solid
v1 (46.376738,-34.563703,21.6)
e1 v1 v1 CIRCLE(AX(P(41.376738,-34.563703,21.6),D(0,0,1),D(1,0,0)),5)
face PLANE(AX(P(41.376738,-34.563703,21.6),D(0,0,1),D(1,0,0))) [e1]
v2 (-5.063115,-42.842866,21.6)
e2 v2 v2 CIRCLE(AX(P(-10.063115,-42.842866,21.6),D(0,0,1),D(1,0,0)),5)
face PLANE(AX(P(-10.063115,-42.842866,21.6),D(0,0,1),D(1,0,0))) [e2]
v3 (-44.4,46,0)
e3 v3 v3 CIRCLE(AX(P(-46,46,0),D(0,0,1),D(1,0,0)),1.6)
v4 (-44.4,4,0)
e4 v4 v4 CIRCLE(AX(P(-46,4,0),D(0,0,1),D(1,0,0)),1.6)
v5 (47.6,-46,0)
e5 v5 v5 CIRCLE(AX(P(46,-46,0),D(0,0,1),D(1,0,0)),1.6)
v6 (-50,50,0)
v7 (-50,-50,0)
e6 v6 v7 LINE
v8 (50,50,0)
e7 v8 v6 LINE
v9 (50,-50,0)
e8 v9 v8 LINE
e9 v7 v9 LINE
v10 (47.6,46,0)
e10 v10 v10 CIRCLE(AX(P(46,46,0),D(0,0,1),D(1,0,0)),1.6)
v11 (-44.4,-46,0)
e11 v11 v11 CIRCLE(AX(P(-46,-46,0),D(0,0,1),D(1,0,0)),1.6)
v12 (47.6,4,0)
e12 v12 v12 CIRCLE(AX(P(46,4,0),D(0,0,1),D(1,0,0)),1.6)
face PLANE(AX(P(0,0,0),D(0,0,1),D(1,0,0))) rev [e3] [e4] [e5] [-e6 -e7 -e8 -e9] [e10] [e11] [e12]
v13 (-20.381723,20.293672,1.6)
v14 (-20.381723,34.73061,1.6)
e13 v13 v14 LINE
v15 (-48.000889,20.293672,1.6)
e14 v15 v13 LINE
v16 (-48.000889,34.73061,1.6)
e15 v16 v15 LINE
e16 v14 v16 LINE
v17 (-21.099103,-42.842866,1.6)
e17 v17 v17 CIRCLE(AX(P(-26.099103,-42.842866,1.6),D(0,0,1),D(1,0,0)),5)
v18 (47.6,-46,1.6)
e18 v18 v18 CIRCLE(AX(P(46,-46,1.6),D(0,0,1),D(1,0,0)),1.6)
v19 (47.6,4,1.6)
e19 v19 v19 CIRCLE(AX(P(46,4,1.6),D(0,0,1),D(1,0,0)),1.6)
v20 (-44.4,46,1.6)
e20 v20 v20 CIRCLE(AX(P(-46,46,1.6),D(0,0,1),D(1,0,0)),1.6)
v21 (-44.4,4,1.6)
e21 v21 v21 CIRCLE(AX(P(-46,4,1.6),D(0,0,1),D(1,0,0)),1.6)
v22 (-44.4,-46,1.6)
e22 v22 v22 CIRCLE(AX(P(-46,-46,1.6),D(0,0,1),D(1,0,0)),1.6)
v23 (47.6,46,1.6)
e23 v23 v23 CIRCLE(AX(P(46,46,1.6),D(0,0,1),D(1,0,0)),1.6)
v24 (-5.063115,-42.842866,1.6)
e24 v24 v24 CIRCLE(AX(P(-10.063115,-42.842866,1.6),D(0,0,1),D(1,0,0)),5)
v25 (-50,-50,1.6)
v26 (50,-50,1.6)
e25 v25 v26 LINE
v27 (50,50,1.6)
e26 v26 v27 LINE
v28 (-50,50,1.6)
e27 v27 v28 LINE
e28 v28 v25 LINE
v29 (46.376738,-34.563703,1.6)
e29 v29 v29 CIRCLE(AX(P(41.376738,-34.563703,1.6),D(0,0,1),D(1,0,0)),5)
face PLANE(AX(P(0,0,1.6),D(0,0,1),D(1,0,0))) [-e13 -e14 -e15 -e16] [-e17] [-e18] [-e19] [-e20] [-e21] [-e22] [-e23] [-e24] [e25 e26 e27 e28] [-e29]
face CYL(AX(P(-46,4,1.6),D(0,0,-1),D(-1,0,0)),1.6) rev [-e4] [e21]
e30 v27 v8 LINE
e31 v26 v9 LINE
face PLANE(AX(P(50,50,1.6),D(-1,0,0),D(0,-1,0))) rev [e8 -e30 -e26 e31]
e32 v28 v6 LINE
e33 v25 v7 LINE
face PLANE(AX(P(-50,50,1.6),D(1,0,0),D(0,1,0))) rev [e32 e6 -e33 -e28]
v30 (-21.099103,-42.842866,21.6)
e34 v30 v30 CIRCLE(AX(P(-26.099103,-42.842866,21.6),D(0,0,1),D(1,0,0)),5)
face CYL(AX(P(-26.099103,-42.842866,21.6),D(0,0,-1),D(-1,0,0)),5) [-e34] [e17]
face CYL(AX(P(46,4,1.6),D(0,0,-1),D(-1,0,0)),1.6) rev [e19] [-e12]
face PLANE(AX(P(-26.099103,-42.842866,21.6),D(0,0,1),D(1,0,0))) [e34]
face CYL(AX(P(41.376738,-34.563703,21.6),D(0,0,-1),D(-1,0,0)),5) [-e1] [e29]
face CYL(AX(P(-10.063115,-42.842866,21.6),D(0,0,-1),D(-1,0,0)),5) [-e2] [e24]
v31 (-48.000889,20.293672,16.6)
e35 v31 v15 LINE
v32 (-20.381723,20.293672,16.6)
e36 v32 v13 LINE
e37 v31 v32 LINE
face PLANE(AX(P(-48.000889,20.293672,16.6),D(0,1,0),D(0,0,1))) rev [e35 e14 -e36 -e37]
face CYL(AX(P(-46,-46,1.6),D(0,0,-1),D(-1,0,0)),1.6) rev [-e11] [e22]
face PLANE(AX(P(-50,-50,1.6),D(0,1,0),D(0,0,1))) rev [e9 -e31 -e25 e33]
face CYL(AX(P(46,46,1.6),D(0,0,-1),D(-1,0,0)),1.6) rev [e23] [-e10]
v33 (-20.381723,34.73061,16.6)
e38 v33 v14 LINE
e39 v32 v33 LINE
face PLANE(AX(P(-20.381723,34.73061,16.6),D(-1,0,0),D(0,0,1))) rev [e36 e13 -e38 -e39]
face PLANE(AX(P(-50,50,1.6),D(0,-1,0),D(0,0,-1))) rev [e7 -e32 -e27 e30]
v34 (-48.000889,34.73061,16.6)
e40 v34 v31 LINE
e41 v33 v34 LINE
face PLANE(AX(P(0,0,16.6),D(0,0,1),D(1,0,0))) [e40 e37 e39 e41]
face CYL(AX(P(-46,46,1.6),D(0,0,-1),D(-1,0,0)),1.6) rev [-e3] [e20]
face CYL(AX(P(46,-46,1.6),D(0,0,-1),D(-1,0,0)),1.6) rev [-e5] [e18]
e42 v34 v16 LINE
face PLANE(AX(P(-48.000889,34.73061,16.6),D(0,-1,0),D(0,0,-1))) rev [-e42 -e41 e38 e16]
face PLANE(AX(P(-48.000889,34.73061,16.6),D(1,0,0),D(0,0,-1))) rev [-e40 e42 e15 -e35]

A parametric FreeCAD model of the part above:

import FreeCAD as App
import Part
import Sketcher
Q = App.Units.Quantity

doc = App.newDocument("Part")
params = doc.addObject("Spreadsheet::Sheet", "Params")
for row, (alias, value) in enumerate([
    ("sketch1_diameter", "3.2 mm"),
    ("sketch1_width", "100 mm"),
    ("pad1_length", "1.6 mm"),
    ("sketch2_diameter", "10 mm"),
    ("pad2_length", "20 mm"),
    ("pad3_length", "15 mm"),
], start=1):
    params.set(f"A{row}", alias)
    params.set(f"B{row}", "=" + value)
    params.setAlias(f"B{row}", alias)

body = doc.addObject("PartDesign::Body", "Body")

# Sketch on XY plane
sketch1 = doc.addObject("Sketcher::SketchObject", "Sketch")
body.addObject(sketch1)
sketch1.AttachmentSupport = (doc.XY_Plane, [""])
sketch1.MapMode = "FlatFace"
sketch1.addGeometry([
    Part.LineSegment(App.Vector(-50, 50, 0), App.Vector(-50, -50, 0)),  # 0
    Part.LineSegment(App.Vector(-50, -50, 0), App.Vector(50, -50, 0)),  # 1
    Part.LineSegment(App.Vector(50, -50, 0), App.Vector(50, 50, 0)),  # 2
    Part.LineSegment(App.Vector(50, 50, 0), App.Vector(-50, 50, 0)),  # 3
    Part.Circle(App.Vector(-46, -46, 0), App.Vector(0, 0, 1), 1.6),  # 4
    Part.Circle(App.Vector(46, -46, 0), App.Vector(0, 0, 1), 1.6),  # 5
    Part.Circle(App.Vector(-46, 4, 0), App.Vector(0, 0, 1), 1.6),  # 6
    Part.Circle(App.Vector(-46, 46, 0), App.Vector(0, 0, 1), 1.6),  # 7
    Part.Circle(App.Vector(46, 4, 0), App.Vector(0, 0, 1), 1.6),  # 8
    Part.Circle(App.Vector(46, 46, 0), App.Vector(0, 0, 1), 1.6),  # 9
], False)
sketch1.addConstraint([
    Sketcher.Constraint("Coincident", 0, 2, 1, 1),
    Sketcher.Constraint("Coincident", 1, 2, 2, 1),
    Sketcher.Constraint("Coincident", 2, 2, 3, 1),
    Sketcher.Constraint("Coincident", 3, 2, 0, 1),
    Sketcher.Constraint("Vertical", 0),
    Sketcher.Constraint("Horizontal", 1),
    Sketcher.Constraint("Vertical", 2),
    Sketcher.Constraint("Horizontal", 3),
    Sketcher.Constraint("Equal", 4, 5),
    Sketcher.Constraint("Equal", 5, 6),
    Sketcher.Constraint("Equal", 6, 7),
    Sketcher.Constraint("Equal", 7, 8),
    Sketcher.Constraint("Equal", 8, 9),
    Sketcher.Constraint("Symmetric", 5, 3, 7, 3, -1, 1),
    Sketcher.Constraint("Symmetric", 4, 3, 9, 3, -1, 1),
    Sketcher.Constraint("Symmetric", 0, 2, 2, 2, -1, 1),
    Sketcher.Constraint("Symmetric", 4, 3, 5, 3, -2),
    Sketcher.Constraint("Symmetric", 6, 3, 8, 3, -2),
    Sketcher.Constraint("Vertical", 4, 3, 6, 3),
    Sketcher.Constraint("Equal", 3, 0),
    Sketcher.Constraint("Diameter", 4, Q("3.2 mm")),
    Sketcher.Constraint("DistanceX", 1, 1, 1, 2, Q("100 mm")),
    Sketcher.Constraint("DistanceX", 4, 3, -1, 1, Q("46 mm")),
    Sketcher.Constraint("DistanceY", 4, 3, -1, 1, Q("46 mm")),
    Sketcher.Constraint("DistanceY", -1, 1, 6, 3, Q("4 mm")),
])
sketch1.setExpression("Constraints[20]", "Params.sketch1_diameter")
sketch1.setExpression("Constraints[21]", "Params.sketch1_width")
pad1 = doc.addObject("PartDesign::Pad", "Pad")
body.addObject(pad1)
pad1.Profile = sketch1
pad1.setExpression("Length", "Params.pad1_length")

# Sketch on XY plane
sketch2 = doc.addObject("Sketcher::SketchObject", "Sketch001")
body.addObject(sketch2)
sketch2.AttachmentSupport = (doc.XY_Plane, [""])
sketch2.MapMode = "FlatFace"
sketch2.AttachmentOffset = App.Placement(App.Vector(0, 0, 1.6), App.Rotation())
sketch2.addGeometry([
    Part.Circle(App.Vector(-26.099103, -42.842866, 0), App.Vector(0, 0, 1), 5),
    Part.Circle(App.Vector(-10.063115, -42.842866, 0), App.Vector(0, 0, 1), 5),
    Part.Circle(App.Vector(41.376738, -34.563703, 0), App.Vector(0, 0, 1), 5),
], False)
sketch2.addConstraint([
    Sketcher.Constraint("Equal", 0, 1),
    Sketcher.Constraint("Equal", 1, 2),
    Sketcher.Constraint("Horizontal", 0, 3, 1, 3),
    Sketcher.Constraint("Diameter", 0, Q("10 mm")),
    Sketcher.Constraint("DistanceX", -1, 1, 2, 3, Q("41.376738 mm")),
    Sketcher.Constraint("DistanceX", 0, 3, 1, 3, Q("16.035989 mm")),
    Sketcher.Constraint("DistanceX", 0, 3, 2, 3, Q("67.475842 mm")),
    Sketcher.Constraint("DistanceY", 0, 3, -1, 1, Q("42.842866 mm")),
    Sketcher.Constraint("DistanceY", 2, 3, -1, 1, Q("34.563703 mm")),
])
sketch2.setExpression("Constraints[3]", "Params.sketch2_diameter")
pad2 = doc.addObject("PartDesign::Pad", "Pad001")
body.addObject(pad2)
pad2.Profile = sketch2
pad2.setExpression("Length", "Params.pad2_length")

# Sketch on XY plane
sketch3 = doc.addObject("Sketcher::SketchObject", "Sketch002")
body.addObject(sketch3)
sketch3.AttachmentSupport = (doc.XY_Plane, [""])
sketch3.MapMode = "FlatFace"
sketch3.AttachmentOffset = App.Placement(App.Vector(0, 0, 1.6), App.Rotation())
sketch3.addGeometry([
    Part.LineSegment(App.Vector(-48.000889, 34.73061, 0), App.Vector(-48.000889, 20.293672, 0)),
    Part.LineSegment(App.Vector(-48.000889, 20.293672, 0), App.Vector(-20.381723, 20.293672, 0)),
    Part.LineSegment(App.Vector(-20.381723, 20.293672, 0), App.Vector(-20.381723, 34.73061, 0)),
    Part.LineSegment(App.Vector(-20.381723, 34.73061, 0), App.Vector(-48.000889, 34.73061, 0)),
], False)
sketch3.addConstraint([
    Sketcher.Constraint("Coincident", 0, 2, 1, 1),
    Sketcher.Constraint("Coincident", 1, 2, 2, 1),
    Sketcher.Constraint("Coincident", 2, 2, 3, 1),
    Sketcher.Constraint("Coincident", 3, 2, 0, 1),
    Sketcher.Constraint("Vertical", 0),
    Sketcher.Constraint("Horizontal", 1),
    Sketcher.Constraint("Vertical", 2),
    Sketcher.Constraint("Horizontal", 3),
    Sketcher.Constraint("DistanceX", 1, 1, 1, 2, Q("27.619166 mm")),
    Sketcher.Constraint("DistanceY", 0, 2, 0, 1, Q("14.436937 mm")),
    Sketcher.Constraint("DistanceX", 0, 2, -1, 1, Q("48.000889 mm")),
    Sketcher.Constraint("DistanceY", -1, 1, 2, 2, Q("34.73061 mm")),
])
pad3 = doc.addObject("PartDesign::Pad", "Pad002")
body.addObject(pad3)
pad3.Profile = sketch3
pad3.setExpression("Length", "Params.pad3_length")

doc.recompute()
